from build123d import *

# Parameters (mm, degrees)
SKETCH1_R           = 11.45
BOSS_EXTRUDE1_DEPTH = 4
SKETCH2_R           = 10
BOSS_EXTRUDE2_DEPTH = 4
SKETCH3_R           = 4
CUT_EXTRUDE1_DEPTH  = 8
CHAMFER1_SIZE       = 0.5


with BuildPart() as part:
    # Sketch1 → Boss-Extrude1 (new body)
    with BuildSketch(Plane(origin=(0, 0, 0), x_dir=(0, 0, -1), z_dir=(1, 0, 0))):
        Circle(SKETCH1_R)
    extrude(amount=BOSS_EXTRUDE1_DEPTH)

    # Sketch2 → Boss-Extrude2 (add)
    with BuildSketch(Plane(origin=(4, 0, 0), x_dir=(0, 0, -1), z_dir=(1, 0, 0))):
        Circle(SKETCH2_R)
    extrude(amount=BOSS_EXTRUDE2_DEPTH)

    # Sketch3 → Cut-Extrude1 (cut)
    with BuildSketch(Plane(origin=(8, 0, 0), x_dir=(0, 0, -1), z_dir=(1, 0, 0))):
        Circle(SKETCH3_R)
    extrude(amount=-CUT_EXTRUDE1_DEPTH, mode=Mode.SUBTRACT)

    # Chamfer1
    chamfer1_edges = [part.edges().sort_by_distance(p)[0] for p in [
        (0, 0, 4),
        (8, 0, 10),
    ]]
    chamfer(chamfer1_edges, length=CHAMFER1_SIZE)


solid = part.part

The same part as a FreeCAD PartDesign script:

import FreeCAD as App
import Part
import Sketcher

V = App.Vector


def edges_at(feature, points):
    """Names of the edges that pass closest to the given points."""
    edges = feature.Shape.Edges
    near = lambda p: min(range(len(edges)), key=lambda i: edges[i].distToShape(Part.Vertex(*p))[0])
    return sorted({f"Edge{near(p) + 1}" for p in points})

doc = App.newDocument("Part")
body = doc.addObject("PartDesign::Body", "Body")

sketch1 = doc.addObject("Sketcher::SketchObject", "Sketch")
body.addObject(sketch1)
sketch1.AttachmentSupport = (doc.YZ_Plane, [""])
sketch1.MapMode = "FlatFace"
sketch1.addGeometry(Part.Circle(V(0, 0, 0), V(0, 0, 1), 11), False)
sketch1.addConstraint([
    Sketcher.Constraint("Coincident", 0, 3, -1, 1),
    Sketcher.Constraint("Diameter", 0, 22.9),
])
pad1 = doc.addObject("PartDesign::Pad", "Pad")
body.addObject(pad1)
pad1.Profile = sketch1
pad1.Length = 4

sketch2 = doc.addObject("Sketcher::SketchObject", "Sketch001")
body.addObject(sketch2)
sketch2.AttachmentSupport = (doc.YZ_Plane, [""])
sketch2.MapMode = "FlatFace"
sketch2.AttachmentOffset = App.Placement(V(0, 0, 4), App.Rotation())
sketch2.addGeometry(Part.Circle(V(0, 0, 0), V(0, 0, 1), 10), False)
sketch2.addConstraint([
    Sketcher.Constraint("Coincident", 0, 3, -1, 1),
    Sketcher.Constraint("Diameter", 0, 20.0),
])
pad2 = doc.addObject("PartDesign::Pad", "Pad001")
body.addObject(pad2)
pad2.Profile = sketch2
pad2.Length = 4

sketch3 = doc.addObject("Sketcher::SketchObject", "Sketch002")
body.addObject(sketch3)
sketch3.AttachmentSupport = (doc.YZ_Plane, [""])
sketch3.MapMode = "FlatFace"
sketch3.AttachmentOffset = App.Placement(V(0, 0, 8), App.Rotation())
sketch3.addGeometry(Part.Circle(V(0, 0, 0), V(0, 0, 1), 4), False)
sketch3.addConstraint([
    Sketcher.Constraint("Coincident", 0, 3, -1, 1),
    Sketcher.Constraint("Diameter", 0, 8.0),
])
pocket1 = doc.addObject("PartDesign::Pocket", "Pocket")
body.addObject(pocket1)
pocket1.Profile = sketch3
pocket1.Length = 8
doc.recompute()

chamfer = doc.addObject("PartDesign::Chamfer", "Chamfer")
body.addObject(chamfer)
chamfer.Base = (pocket1, edges_at(pocket1, [(0, 0, 4), (8, 0, 10)]))
chamfer.Size = 0.5

doc.recompute()
